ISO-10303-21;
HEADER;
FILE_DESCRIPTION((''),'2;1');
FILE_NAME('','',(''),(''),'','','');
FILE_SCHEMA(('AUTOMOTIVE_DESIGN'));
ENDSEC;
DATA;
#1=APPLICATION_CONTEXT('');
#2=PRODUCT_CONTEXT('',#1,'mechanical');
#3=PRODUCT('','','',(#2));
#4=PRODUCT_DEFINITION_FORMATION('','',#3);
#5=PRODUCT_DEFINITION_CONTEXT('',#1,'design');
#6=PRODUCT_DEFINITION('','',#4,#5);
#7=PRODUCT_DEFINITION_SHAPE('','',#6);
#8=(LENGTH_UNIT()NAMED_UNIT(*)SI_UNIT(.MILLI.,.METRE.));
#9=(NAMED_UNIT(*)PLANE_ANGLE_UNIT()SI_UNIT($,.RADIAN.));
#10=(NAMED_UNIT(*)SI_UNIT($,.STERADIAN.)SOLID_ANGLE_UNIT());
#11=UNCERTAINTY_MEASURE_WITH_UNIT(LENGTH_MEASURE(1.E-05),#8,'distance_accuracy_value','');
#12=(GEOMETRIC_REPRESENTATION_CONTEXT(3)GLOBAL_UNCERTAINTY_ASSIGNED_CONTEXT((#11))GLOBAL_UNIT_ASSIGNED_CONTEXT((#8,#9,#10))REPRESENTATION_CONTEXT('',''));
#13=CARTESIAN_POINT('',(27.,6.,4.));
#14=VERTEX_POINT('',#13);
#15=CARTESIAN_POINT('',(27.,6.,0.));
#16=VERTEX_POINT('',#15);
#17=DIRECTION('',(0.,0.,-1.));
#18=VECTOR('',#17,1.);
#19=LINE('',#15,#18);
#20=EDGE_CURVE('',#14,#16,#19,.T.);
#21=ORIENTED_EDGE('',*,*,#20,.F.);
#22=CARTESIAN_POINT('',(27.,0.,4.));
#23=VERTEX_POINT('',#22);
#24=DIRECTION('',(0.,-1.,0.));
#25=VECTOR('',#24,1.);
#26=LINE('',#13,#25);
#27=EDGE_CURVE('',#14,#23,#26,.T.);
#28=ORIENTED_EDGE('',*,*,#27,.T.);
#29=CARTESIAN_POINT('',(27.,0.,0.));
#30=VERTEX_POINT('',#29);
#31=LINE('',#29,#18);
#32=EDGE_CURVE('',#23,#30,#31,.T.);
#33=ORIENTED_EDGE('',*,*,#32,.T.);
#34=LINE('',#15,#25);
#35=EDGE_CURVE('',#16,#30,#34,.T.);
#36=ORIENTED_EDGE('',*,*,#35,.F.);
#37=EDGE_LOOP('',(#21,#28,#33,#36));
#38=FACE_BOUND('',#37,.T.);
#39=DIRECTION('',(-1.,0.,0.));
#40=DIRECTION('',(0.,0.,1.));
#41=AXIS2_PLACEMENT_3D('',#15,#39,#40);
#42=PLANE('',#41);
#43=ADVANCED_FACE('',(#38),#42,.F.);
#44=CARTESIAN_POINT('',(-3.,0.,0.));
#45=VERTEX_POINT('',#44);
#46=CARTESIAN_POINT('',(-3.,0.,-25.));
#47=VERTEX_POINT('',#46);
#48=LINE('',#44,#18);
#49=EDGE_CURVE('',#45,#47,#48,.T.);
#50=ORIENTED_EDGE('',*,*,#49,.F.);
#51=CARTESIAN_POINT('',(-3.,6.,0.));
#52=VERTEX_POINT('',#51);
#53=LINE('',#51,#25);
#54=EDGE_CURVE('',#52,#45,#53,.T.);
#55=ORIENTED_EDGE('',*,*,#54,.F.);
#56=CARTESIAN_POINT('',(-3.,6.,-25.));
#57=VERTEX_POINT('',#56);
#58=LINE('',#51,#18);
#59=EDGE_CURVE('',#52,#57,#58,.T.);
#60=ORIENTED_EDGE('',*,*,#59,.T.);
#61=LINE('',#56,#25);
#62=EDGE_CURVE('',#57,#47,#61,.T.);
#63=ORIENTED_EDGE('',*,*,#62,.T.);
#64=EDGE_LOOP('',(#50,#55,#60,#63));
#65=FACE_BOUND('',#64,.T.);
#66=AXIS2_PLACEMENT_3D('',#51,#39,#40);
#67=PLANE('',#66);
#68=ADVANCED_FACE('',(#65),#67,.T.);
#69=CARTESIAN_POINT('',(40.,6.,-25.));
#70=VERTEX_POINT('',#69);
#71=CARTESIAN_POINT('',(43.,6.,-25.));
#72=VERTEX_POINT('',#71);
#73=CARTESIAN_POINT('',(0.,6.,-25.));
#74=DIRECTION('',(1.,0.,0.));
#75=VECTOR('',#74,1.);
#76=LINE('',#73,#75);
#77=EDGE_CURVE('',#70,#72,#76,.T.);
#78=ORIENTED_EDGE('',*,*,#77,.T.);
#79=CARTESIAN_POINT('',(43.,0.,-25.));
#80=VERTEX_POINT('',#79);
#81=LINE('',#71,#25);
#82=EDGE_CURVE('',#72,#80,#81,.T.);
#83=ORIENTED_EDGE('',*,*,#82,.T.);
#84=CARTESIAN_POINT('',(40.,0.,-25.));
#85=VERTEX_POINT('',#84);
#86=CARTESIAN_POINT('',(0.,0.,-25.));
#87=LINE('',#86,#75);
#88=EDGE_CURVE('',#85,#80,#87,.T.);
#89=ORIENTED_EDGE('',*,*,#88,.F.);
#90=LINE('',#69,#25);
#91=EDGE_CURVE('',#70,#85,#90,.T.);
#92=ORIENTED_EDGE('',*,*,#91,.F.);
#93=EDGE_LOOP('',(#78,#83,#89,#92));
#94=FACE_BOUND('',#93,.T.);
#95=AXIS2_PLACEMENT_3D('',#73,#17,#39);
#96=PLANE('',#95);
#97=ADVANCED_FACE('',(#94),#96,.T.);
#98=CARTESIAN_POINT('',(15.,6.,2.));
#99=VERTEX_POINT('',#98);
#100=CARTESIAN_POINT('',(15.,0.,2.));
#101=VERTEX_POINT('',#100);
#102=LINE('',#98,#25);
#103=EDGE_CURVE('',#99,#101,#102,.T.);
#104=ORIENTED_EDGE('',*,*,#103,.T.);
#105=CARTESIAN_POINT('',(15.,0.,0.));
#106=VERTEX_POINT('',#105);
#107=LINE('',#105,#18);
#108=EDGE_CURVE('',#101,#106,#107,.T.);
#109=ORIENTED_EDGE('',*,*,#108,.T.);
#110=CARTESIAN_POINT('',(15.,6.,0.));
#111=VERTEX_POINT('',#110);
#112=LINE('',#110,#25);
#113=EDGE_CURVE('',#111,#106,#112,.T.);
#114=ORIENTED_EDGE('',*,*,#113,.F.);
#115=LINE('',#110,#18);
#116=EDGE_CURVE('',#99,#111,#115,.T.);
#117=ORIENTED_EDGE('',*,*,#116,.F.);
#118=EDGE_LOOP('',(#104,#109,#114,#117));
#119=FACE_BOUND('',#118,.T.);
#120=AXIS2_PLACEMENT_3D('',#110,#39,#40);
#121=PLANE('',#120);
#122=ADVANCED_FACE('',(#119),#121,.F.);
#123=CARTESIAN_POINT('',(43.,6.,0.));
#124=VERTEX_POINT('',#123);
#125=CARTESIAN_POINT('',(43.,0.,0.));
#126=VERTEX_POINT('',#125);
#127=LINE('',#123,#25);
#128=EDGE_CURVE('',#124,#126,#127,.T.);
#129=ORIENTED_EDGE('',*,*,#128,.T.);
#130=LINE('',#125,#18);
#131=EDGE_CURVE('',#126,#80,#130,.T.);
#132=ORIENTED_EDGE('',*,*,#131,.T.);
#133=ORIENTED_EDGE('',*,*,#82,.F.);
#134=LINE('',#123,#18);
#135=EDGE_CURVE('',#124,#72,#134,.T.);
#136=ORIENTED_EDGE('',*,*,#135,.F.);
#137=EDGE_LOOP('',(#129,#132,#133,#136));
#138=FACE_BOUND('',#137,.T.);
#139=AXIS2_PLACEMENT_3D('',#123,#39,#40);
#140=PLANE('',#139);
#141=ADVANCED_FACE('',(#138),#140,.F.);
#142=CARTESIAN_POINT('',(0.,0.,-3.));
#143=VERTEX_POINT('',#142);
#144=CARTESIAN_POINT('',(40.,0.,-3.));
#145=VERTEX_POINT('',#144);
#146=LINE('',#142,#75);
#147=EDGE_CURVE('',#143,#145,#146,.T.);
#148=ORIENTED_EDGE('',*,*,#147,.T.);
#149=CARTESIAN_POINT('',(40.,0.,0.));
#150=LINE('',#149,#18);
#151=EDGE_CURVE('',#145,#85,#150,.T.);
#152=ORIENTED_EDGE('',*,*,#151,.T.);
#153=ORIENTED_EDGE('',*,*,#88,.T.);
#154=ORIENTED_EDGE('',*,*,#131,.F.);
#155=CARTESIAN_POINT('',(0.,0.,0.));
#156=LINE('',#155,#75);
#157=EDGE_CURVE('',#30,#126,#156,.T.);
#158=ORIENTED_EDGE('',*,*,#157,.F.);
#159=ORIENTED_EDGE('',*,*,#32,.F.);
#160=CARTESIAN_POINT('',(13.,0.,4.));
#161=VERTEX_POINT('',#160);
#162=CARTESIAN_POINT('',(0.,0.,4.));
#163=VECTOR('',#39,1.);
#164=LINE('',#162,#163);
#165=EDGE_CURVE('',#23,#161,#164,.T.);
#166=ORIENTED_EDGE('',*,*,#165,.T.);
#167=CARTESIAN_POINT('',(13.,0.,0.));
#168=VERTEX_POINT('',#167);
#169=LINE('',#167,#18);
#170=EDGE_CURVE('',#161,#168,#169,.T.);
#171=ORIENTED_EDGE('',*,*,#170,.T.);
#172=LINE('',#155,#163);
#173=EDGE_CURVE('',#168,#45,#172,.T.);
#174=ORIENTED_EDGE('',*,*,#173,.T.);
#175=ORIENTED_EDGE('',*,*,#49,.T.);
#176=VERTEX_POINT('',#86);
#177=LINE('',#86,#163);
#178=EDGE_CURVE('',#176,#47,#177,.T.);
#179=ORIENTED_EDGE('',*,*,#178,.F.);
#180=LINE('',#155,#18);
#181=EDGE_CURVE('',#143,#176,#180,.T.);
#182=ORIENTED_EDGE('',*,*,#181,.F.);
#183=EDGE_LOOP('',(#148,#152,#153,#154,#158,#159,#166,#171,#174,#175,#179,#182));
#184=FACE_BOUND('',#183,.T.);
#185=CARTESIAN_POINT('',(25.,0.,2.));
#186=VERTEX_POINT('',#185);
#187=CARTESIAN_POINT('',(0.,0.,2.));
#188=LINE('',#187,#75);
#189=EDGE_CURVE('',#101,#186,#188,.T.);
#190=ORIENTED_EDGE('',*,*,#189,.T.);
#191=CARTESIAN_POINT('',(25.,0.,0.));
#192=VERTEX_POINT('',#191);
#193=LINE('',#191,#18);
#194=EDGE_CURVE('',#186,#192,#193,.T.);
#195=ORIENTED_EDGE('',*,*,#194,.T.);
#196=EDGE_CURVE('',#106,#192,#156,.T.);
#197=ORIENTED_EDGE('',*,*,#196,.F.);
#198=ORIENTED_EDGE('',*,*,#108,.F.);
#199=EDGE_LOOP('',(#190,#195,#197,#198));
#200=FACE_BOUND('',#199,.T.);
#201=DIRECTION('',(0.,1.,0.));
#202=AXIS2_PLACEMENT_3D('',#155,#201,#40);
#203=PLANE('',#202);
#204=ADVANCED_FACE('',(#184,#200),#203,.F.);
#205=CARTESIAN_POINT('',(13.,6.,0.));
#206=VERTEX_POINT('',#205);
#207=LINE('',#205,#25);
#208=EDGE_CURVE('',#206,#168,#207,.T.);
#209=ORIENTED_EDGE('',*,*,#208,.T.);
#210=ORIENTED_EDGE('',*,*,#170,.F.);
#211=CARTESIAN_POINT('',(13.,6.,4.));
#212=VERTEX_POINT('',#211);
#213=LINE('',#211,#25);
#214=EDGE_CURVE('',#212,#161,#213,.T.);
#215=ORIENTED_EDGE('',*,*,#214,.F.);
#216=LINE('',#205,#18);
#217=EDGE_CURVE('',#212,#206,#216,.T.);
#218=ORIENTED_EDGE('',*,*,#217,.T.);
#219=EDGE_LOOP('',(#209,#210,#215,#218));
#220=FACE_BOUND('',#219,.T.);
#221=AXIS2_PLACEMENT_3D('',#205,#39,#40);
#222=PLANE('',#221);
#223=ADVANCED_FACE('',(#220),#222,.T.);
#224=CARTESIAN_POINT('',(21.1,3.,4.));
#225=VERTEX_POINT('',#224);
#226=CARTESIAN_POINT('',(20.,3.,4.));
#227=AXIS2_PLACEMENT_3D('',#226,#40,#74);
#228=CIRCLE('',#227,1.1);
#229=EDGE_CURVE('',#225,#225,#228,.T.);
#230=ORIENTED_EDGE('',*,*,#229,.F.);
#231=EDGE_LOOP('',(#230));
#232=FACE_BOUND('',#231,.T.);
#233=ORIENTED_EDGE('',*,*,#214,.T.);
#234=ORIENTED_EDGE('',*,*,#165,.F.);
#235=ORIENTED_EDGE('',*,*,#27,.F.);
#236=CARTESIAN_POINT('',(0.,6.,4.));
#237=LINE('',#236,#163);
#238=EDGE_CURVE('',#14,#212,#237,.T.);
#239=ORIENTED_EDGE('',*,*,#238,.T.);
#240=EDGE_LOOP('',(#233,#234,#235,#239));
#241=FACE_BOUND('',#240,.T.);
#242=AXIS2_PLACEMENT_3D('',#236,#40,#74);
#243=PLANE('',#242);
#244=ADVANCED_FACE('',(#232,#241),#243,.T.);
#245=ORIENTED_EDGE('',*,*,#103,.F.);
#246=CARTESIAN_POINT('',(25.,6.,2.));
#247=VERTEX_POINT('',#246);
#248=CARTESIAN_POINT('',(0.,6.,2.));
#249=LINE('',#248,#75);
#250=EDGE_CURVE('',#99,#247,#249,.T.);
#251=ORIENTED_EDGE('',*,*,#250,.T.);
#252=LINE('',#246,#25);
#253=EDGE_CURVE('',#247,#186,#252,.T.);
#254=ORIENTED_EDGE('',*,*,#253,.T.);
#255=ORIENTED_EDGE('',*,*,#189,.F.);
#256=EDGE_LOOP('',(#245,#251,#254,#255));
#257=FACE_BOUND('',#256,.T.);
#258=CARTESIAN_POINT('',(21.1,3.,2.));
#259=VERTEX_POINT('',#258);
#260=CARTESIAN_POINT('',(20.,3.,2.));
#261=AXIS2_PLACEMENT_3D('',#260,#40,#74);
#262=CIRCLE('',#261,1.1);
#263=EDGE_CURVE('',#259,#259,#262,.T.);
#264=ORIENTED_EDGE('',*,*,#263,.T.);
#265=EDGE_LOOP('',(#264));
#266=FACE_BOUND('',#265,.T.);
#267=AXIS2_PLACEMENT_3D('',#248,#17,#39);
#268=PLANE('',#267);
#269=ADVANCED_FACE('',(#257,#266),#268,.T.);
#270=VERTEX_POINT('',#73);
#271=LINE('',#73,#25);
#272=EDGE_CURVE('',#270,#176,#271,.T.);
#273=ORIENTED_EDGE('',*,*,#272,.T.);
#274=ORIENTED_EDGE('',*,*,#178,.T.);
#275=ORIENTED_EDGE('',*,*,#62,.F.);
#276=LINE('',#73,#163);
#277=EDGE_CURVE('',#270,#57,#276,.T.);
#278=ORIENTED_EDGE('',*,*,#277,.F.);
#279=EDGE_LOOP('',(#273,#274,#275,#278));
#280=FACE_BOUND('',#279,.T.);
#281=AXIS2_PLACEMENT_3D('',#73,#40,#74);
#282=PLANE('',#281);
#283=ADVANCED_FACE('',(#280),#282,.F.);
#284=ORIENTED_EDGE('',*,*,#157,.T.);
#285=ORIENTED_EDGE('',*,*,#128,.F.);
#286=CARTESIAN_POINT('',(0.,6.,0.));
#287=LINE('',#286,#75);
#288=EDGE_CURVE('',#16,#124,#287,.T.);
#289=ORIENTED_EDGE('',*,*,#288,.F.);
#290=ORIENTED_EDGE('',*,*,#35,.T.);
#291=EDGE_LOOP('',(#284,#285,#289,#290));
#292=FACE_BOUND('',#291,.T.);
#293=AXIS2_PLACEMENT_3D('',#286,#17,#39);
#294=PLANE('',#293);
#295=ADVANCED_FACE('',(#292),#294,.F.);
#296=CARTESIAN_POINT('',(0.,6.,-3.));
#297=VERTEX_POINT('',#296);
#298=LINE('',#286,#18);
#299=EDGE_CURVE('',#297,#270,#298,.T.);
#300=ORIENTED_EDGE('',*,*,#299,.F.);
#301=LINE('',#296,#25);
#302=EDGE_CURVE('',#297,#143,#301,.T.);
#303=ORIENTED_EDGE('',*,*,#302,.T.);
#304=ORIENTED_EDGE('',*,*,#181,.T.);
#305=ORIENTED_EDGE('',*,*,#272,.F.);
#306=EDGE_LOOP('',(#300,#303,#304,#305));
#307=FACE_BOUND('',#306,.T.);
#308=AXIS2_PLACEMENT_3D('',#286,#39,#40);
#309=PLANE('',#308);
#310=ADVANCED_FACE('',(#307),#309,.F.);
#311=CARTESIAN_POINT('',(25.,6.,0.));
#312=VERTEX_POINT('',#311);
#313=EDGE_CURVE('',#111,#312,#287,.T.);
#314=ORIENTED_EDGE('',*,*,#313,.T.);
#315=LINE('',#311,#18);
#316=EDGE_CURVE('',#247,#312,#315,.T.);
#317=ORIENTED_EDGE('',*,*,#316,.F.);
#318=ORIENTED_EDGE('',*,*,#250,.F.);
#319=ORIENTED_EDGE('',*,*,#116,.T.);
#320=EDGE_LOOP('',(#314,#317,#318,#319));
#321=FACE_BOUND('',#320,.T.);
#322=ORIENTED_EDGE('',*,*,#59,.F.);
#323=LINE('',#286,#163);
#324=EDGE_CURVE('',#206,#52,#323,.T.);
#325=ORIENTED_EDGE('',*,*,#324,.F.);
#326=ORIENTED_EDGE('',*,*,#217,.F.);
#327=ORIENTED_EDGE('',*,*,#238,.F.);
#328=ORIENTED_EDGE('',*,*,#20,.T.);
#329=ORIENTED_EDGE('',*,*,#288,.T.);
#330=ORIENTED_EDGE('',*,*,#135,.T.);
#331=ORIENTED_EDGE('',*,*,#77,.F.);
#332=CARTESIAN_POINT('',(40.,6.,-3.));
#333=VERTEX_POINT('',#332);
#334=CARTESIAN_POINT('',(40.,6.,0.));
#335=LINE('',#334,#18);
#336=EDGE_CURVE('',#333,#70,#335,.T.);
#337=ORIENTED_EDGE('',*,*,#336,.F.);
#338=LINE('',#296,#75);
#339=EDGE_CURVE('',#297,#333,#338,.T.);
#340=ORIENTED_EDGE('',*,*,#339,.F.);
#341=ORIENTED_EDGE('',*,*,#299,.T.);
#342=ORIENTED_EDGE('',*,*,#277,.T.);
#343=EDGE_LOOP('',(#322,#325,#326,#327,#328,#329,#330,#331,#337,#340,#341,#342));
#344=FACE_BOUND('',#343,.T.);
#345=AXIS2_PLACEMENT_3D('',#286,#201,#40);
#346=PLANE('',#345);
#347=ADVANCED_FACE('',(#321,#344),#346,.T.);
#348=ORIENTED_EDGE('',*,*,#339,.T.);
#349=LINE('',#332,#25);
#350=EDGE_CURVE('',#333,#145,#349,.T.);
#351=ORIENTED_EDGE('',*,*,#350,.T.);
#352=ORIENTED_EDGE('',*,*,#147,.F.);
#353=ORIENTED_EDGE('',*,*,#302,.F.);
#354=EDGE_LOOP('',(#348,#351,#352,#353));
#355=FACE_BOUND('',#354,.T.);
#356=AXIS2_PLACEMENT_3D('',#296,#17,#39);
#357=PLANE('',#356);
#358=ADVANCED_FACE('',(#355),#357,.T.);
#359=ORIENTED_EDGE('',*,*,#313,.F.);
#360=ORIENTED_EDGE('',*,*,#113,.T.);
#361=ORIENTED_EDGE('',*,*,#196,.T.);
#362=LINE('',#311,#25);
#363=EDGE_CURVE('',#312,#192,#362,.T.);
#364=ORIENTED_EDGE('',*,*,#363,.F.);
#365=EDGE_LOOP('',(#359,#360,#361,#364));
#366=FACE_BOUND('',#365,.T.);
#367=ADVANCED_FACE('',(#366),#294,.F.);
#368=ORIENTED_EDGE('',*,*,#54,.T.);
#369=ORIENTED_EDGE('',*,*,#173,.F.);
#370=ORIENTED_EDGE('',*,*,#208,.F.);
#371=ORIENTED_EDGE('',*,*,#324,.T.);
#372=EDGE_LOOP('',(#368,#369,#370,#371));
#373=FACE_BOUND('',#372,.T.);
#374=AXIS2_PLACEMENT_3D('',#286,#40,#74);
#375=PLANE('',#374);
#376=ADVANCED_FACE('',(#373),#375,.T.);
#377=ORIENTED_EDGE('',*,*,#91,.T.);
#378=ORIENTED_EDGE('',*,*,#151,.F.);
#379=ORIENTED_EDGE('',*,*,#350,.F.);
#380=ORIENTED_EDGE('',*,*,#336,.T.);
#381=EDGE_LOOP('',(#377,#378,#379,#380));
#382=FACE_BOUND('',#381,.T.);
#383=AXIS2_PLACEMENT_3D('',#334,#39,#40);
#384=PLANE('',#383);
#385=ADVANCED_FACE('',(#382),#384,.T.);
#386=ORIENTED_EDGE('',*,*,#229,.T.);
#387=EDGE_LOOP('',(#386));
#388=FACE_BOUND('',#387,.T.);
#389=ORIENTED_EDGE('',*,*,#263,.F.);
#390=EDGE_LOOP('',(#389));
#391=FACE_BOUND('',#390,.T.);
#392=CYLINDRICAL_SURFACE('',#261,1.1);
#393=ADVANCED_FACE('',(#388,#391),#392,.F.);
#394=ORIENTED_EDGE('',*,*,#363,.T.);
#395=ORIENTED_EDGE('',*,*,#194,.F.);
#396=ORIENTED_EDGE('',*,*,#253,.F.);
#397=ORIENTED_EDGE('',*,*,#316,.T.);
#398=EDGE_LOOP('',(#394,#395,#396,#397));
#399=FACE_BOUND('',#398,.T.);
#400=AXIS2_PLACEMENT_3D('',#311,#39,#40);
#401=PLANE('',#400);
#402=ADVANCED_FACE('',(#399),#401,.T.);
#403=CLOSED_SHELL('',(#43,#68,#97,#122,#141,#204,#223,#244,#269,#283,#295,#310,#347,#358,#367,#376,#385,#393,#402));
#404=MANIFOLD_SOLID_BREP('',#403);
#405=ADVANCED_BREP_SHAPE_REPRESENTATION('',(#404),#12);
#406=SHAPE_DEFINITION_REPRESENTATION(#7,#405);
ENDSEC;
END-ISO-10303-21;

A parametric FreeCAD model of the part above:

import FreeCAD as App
import Part
import Sketcher
from FreeCAD import Vector


def add_polygon(sketch, points):
    """Adds a closed chain of lines whose ends are joined by coincident constraints."""
    first, n = sketch.GeometryCount, len(points)
    for a, b in zip(points, points[1:] + points[:1]):
        sketch.addGeometry(Part.LineSegment(App.Vector(*a, 0), App.Vector(*b, 0)), False)
    for i in range(n):
        sketch.addConstraint(Sketcher.Constraint("Coincident", first + i, 2, first + (i + 1) % n, 1))

doc = App.newDocument("Part")
params = doc.addObject("Spreadsheet::Sheet", "Params")
for row, (alias, value) in enumerate([
    ("sketch1_width", "14 mm"),
    ("sketch1_width2", "16 mm"),
    ("sketch1_width3", "3 mm"),
    ("sketch1_width4", "10 mm"),
    ("sketch1_height", "4 mm"),
    ("pad1_length", "6 mm"),
    ("sketch2_diameter", "2.2 mm"),
    ("pocket1_length", "2 mm"),
], start=1):
    params.set(f"A{row}", alias)
    params.set(f"B{row}", "=" + value)
    params.setAlias(f"B{row}", alias)

body = doc.addObject("PartDesign::Body", "Body")

# Sketch on XZ plane
sketch1 = doc.addObject("Sketcher::SketchObject", "Sketch")
body.addObject(sketch1)
sketch1.AttachmentSupport = (doc.XZ_Plane, [""])
sketch1.MapMode = "FlatFace"
add_polygon(sketch1, [(13, 0), (13, 4), (27, 4), (27, 0), (43, 0), (43, -25), (40, -25), (40, -3), (0, -3), (0, -25), (-3, -25), (-3, 0)])  # lines 0-11
add_polygon(sketch1, [(25, 0), (25, 2), (15, 2), (15, 0)])  # lines 12-15
sketch1.addConstraint(Sketcher.Constraint("Vertical", 0))
sketch1.addConstraint(Sketcher.Constraint("Horizontal", 1))
sketch1.addConstraint(Sketcher.Constraint("Vertical", 2))
sketch1.addConstraint(Sketcher.Constraint("Horizontal", 3))
sketch1.addConstraint(Sketcher.Constraint("Vertical", 4))
sketch1.addConstraint(Sketcher.Constraint("Horizontal", 5))
sketch1.addConstraint(Sketcher.Constraint("Vertical", 6))
sketch1.addConstraint(Sketcher.Constraint("Horizontal", 7))
sketch1.addConstraint(Sketcher.Constraint("Vertical", 8))
sketch1.addConstraint(Sketcher.Constraint("Horizontal", 9))
sketch1.addConstraint(Sketcher.Constraint("Vertical", 10))
sketch1.addConstraint(Sketcher.Constraint("Horizontal", 11))
sketch1.addConstraint(Sketcher.Constraint("Vertical", 12))
sketch1.addConstraint(Sketcher.Constraint("Horizontal", 13))
sketch1.addConstraint(Sketcher.Constraint("Vertical", 14))
sketch1.addConstraint(Sketcher.Constraint("Horizontal", 15))
sketch1.addConstraint(Sketcher.Constraint("PointOnObject", 2, 2, -1))
sketch1.addConstraint(Sketcher.Constraint("PointOnObject", 7, 2, -2))
sketch1.addConstraint(Sketcher.Constraint("PointOnObject", 10, 2, -1))
sketch1.addConstraint(Sketcher.Constraint("PointOnObject", 14, 2, -1))
sketch1.addConstraint(Sketcher.Constraint("Horizontal", 5, 2, 8, 2))
sketch1.addConstraint(Sketcher.Constraint("Equal", 5, 9))
sketch1.addConstraint(Sketcher.Constraint("Equal", 3, 11))
sketch1.addConstraint(Sketcher.Constraint("DistanceX", 1, 1, 1, 2, 14.0))
sketch1.addConstraint(Sketcher.Constraint("DistanceX", 3, 1, 3, 2, 16.0))
sketch1.addConstraint(Sketcher.Constraint("DistanceX", 5, 2, 5, 1, 3.0))
sketch1.addConstraint(Sketcher.Constraint("DistanceX", 13, 2, 13, 1, 10.0))
sketch1.addConstraint(Sketcher.Constraint("DistanceY", 0, 1, 0, 2, 4.0))
sketch1.addConstraint(Sketcher.Constraint("DistanceY", 4, 2, 4, 1, 25.0))
sketch1.addConstraint(Sketcher.Constraint("DistanceY", 6, 1, 6, 2, 22.0))
sketch1.addConstraint(Sketcher.Constraint("DistanceY", 12, 1, 12, 2, 2.0))
sketch1.addConstraint(Sketcher.Constraint("DistanceX", -1, 1, 12, 2, 25.0))
sketch1.setExpression("Constraints[39]", "Params.sketch1_width")
sketch1.setExpression("Constraints[40]", "Params.sketch1_width2")
sketch1.setExpression("Constraints[41]", "Params.sketch1_width3")
sketch1.setExpression("Constraints[42]", "Params.sketch1_width4")
sketch1.setExpression("Constraints[43]", "Params.sketch1_height")
pad1 = doc.addObject("PartDesign::Pad", "Pad")
body.addObject(pad1)
pad1.Profile = sketch1
pad1.setExpression("Length", "Params.pad1_length")
pad1.Reversed = True

# Sketch on XY plane
sketch2 = doc.addObject("Sketcher::SketchObject", "Sketch001")
body.addObject(sketch2)
sketch2.AttachmentSupport = (doc.XY_Plane, [""])
sketch2.MapMode = "FlatFace"
sketch2.AttachmentOffset = App.Placement(Vector(0, 0, 4), App.Rotation())
sketch2.addGeometry(Part.Circle(Vector(20, 3, 0), Vector(0, 0, 1), 1.1), False)
sketch2.addConstraint(Sketcher.Constraint("Diameter", 0, 2.2))
sketch2.addConstraint(Sketcher.Constraint("DistanceX", -1, 1, 0, 3, 20.0))
sketch2.addConstraint(Sketcher.Constraint("DistanceY", -1, 1, 0, 3, 3.0))
sketch2.setExpression("Constraints[0]", "Params.sketch2_diameter")
pocket1 = doc.addObject("PartDesign::Pocket", "Pocket")
body.addObject(pocket1)
pocket1.Profile = sketch2
pocket1.setExpression("Length", "Params.pocket1_length")

doc.recompute()
